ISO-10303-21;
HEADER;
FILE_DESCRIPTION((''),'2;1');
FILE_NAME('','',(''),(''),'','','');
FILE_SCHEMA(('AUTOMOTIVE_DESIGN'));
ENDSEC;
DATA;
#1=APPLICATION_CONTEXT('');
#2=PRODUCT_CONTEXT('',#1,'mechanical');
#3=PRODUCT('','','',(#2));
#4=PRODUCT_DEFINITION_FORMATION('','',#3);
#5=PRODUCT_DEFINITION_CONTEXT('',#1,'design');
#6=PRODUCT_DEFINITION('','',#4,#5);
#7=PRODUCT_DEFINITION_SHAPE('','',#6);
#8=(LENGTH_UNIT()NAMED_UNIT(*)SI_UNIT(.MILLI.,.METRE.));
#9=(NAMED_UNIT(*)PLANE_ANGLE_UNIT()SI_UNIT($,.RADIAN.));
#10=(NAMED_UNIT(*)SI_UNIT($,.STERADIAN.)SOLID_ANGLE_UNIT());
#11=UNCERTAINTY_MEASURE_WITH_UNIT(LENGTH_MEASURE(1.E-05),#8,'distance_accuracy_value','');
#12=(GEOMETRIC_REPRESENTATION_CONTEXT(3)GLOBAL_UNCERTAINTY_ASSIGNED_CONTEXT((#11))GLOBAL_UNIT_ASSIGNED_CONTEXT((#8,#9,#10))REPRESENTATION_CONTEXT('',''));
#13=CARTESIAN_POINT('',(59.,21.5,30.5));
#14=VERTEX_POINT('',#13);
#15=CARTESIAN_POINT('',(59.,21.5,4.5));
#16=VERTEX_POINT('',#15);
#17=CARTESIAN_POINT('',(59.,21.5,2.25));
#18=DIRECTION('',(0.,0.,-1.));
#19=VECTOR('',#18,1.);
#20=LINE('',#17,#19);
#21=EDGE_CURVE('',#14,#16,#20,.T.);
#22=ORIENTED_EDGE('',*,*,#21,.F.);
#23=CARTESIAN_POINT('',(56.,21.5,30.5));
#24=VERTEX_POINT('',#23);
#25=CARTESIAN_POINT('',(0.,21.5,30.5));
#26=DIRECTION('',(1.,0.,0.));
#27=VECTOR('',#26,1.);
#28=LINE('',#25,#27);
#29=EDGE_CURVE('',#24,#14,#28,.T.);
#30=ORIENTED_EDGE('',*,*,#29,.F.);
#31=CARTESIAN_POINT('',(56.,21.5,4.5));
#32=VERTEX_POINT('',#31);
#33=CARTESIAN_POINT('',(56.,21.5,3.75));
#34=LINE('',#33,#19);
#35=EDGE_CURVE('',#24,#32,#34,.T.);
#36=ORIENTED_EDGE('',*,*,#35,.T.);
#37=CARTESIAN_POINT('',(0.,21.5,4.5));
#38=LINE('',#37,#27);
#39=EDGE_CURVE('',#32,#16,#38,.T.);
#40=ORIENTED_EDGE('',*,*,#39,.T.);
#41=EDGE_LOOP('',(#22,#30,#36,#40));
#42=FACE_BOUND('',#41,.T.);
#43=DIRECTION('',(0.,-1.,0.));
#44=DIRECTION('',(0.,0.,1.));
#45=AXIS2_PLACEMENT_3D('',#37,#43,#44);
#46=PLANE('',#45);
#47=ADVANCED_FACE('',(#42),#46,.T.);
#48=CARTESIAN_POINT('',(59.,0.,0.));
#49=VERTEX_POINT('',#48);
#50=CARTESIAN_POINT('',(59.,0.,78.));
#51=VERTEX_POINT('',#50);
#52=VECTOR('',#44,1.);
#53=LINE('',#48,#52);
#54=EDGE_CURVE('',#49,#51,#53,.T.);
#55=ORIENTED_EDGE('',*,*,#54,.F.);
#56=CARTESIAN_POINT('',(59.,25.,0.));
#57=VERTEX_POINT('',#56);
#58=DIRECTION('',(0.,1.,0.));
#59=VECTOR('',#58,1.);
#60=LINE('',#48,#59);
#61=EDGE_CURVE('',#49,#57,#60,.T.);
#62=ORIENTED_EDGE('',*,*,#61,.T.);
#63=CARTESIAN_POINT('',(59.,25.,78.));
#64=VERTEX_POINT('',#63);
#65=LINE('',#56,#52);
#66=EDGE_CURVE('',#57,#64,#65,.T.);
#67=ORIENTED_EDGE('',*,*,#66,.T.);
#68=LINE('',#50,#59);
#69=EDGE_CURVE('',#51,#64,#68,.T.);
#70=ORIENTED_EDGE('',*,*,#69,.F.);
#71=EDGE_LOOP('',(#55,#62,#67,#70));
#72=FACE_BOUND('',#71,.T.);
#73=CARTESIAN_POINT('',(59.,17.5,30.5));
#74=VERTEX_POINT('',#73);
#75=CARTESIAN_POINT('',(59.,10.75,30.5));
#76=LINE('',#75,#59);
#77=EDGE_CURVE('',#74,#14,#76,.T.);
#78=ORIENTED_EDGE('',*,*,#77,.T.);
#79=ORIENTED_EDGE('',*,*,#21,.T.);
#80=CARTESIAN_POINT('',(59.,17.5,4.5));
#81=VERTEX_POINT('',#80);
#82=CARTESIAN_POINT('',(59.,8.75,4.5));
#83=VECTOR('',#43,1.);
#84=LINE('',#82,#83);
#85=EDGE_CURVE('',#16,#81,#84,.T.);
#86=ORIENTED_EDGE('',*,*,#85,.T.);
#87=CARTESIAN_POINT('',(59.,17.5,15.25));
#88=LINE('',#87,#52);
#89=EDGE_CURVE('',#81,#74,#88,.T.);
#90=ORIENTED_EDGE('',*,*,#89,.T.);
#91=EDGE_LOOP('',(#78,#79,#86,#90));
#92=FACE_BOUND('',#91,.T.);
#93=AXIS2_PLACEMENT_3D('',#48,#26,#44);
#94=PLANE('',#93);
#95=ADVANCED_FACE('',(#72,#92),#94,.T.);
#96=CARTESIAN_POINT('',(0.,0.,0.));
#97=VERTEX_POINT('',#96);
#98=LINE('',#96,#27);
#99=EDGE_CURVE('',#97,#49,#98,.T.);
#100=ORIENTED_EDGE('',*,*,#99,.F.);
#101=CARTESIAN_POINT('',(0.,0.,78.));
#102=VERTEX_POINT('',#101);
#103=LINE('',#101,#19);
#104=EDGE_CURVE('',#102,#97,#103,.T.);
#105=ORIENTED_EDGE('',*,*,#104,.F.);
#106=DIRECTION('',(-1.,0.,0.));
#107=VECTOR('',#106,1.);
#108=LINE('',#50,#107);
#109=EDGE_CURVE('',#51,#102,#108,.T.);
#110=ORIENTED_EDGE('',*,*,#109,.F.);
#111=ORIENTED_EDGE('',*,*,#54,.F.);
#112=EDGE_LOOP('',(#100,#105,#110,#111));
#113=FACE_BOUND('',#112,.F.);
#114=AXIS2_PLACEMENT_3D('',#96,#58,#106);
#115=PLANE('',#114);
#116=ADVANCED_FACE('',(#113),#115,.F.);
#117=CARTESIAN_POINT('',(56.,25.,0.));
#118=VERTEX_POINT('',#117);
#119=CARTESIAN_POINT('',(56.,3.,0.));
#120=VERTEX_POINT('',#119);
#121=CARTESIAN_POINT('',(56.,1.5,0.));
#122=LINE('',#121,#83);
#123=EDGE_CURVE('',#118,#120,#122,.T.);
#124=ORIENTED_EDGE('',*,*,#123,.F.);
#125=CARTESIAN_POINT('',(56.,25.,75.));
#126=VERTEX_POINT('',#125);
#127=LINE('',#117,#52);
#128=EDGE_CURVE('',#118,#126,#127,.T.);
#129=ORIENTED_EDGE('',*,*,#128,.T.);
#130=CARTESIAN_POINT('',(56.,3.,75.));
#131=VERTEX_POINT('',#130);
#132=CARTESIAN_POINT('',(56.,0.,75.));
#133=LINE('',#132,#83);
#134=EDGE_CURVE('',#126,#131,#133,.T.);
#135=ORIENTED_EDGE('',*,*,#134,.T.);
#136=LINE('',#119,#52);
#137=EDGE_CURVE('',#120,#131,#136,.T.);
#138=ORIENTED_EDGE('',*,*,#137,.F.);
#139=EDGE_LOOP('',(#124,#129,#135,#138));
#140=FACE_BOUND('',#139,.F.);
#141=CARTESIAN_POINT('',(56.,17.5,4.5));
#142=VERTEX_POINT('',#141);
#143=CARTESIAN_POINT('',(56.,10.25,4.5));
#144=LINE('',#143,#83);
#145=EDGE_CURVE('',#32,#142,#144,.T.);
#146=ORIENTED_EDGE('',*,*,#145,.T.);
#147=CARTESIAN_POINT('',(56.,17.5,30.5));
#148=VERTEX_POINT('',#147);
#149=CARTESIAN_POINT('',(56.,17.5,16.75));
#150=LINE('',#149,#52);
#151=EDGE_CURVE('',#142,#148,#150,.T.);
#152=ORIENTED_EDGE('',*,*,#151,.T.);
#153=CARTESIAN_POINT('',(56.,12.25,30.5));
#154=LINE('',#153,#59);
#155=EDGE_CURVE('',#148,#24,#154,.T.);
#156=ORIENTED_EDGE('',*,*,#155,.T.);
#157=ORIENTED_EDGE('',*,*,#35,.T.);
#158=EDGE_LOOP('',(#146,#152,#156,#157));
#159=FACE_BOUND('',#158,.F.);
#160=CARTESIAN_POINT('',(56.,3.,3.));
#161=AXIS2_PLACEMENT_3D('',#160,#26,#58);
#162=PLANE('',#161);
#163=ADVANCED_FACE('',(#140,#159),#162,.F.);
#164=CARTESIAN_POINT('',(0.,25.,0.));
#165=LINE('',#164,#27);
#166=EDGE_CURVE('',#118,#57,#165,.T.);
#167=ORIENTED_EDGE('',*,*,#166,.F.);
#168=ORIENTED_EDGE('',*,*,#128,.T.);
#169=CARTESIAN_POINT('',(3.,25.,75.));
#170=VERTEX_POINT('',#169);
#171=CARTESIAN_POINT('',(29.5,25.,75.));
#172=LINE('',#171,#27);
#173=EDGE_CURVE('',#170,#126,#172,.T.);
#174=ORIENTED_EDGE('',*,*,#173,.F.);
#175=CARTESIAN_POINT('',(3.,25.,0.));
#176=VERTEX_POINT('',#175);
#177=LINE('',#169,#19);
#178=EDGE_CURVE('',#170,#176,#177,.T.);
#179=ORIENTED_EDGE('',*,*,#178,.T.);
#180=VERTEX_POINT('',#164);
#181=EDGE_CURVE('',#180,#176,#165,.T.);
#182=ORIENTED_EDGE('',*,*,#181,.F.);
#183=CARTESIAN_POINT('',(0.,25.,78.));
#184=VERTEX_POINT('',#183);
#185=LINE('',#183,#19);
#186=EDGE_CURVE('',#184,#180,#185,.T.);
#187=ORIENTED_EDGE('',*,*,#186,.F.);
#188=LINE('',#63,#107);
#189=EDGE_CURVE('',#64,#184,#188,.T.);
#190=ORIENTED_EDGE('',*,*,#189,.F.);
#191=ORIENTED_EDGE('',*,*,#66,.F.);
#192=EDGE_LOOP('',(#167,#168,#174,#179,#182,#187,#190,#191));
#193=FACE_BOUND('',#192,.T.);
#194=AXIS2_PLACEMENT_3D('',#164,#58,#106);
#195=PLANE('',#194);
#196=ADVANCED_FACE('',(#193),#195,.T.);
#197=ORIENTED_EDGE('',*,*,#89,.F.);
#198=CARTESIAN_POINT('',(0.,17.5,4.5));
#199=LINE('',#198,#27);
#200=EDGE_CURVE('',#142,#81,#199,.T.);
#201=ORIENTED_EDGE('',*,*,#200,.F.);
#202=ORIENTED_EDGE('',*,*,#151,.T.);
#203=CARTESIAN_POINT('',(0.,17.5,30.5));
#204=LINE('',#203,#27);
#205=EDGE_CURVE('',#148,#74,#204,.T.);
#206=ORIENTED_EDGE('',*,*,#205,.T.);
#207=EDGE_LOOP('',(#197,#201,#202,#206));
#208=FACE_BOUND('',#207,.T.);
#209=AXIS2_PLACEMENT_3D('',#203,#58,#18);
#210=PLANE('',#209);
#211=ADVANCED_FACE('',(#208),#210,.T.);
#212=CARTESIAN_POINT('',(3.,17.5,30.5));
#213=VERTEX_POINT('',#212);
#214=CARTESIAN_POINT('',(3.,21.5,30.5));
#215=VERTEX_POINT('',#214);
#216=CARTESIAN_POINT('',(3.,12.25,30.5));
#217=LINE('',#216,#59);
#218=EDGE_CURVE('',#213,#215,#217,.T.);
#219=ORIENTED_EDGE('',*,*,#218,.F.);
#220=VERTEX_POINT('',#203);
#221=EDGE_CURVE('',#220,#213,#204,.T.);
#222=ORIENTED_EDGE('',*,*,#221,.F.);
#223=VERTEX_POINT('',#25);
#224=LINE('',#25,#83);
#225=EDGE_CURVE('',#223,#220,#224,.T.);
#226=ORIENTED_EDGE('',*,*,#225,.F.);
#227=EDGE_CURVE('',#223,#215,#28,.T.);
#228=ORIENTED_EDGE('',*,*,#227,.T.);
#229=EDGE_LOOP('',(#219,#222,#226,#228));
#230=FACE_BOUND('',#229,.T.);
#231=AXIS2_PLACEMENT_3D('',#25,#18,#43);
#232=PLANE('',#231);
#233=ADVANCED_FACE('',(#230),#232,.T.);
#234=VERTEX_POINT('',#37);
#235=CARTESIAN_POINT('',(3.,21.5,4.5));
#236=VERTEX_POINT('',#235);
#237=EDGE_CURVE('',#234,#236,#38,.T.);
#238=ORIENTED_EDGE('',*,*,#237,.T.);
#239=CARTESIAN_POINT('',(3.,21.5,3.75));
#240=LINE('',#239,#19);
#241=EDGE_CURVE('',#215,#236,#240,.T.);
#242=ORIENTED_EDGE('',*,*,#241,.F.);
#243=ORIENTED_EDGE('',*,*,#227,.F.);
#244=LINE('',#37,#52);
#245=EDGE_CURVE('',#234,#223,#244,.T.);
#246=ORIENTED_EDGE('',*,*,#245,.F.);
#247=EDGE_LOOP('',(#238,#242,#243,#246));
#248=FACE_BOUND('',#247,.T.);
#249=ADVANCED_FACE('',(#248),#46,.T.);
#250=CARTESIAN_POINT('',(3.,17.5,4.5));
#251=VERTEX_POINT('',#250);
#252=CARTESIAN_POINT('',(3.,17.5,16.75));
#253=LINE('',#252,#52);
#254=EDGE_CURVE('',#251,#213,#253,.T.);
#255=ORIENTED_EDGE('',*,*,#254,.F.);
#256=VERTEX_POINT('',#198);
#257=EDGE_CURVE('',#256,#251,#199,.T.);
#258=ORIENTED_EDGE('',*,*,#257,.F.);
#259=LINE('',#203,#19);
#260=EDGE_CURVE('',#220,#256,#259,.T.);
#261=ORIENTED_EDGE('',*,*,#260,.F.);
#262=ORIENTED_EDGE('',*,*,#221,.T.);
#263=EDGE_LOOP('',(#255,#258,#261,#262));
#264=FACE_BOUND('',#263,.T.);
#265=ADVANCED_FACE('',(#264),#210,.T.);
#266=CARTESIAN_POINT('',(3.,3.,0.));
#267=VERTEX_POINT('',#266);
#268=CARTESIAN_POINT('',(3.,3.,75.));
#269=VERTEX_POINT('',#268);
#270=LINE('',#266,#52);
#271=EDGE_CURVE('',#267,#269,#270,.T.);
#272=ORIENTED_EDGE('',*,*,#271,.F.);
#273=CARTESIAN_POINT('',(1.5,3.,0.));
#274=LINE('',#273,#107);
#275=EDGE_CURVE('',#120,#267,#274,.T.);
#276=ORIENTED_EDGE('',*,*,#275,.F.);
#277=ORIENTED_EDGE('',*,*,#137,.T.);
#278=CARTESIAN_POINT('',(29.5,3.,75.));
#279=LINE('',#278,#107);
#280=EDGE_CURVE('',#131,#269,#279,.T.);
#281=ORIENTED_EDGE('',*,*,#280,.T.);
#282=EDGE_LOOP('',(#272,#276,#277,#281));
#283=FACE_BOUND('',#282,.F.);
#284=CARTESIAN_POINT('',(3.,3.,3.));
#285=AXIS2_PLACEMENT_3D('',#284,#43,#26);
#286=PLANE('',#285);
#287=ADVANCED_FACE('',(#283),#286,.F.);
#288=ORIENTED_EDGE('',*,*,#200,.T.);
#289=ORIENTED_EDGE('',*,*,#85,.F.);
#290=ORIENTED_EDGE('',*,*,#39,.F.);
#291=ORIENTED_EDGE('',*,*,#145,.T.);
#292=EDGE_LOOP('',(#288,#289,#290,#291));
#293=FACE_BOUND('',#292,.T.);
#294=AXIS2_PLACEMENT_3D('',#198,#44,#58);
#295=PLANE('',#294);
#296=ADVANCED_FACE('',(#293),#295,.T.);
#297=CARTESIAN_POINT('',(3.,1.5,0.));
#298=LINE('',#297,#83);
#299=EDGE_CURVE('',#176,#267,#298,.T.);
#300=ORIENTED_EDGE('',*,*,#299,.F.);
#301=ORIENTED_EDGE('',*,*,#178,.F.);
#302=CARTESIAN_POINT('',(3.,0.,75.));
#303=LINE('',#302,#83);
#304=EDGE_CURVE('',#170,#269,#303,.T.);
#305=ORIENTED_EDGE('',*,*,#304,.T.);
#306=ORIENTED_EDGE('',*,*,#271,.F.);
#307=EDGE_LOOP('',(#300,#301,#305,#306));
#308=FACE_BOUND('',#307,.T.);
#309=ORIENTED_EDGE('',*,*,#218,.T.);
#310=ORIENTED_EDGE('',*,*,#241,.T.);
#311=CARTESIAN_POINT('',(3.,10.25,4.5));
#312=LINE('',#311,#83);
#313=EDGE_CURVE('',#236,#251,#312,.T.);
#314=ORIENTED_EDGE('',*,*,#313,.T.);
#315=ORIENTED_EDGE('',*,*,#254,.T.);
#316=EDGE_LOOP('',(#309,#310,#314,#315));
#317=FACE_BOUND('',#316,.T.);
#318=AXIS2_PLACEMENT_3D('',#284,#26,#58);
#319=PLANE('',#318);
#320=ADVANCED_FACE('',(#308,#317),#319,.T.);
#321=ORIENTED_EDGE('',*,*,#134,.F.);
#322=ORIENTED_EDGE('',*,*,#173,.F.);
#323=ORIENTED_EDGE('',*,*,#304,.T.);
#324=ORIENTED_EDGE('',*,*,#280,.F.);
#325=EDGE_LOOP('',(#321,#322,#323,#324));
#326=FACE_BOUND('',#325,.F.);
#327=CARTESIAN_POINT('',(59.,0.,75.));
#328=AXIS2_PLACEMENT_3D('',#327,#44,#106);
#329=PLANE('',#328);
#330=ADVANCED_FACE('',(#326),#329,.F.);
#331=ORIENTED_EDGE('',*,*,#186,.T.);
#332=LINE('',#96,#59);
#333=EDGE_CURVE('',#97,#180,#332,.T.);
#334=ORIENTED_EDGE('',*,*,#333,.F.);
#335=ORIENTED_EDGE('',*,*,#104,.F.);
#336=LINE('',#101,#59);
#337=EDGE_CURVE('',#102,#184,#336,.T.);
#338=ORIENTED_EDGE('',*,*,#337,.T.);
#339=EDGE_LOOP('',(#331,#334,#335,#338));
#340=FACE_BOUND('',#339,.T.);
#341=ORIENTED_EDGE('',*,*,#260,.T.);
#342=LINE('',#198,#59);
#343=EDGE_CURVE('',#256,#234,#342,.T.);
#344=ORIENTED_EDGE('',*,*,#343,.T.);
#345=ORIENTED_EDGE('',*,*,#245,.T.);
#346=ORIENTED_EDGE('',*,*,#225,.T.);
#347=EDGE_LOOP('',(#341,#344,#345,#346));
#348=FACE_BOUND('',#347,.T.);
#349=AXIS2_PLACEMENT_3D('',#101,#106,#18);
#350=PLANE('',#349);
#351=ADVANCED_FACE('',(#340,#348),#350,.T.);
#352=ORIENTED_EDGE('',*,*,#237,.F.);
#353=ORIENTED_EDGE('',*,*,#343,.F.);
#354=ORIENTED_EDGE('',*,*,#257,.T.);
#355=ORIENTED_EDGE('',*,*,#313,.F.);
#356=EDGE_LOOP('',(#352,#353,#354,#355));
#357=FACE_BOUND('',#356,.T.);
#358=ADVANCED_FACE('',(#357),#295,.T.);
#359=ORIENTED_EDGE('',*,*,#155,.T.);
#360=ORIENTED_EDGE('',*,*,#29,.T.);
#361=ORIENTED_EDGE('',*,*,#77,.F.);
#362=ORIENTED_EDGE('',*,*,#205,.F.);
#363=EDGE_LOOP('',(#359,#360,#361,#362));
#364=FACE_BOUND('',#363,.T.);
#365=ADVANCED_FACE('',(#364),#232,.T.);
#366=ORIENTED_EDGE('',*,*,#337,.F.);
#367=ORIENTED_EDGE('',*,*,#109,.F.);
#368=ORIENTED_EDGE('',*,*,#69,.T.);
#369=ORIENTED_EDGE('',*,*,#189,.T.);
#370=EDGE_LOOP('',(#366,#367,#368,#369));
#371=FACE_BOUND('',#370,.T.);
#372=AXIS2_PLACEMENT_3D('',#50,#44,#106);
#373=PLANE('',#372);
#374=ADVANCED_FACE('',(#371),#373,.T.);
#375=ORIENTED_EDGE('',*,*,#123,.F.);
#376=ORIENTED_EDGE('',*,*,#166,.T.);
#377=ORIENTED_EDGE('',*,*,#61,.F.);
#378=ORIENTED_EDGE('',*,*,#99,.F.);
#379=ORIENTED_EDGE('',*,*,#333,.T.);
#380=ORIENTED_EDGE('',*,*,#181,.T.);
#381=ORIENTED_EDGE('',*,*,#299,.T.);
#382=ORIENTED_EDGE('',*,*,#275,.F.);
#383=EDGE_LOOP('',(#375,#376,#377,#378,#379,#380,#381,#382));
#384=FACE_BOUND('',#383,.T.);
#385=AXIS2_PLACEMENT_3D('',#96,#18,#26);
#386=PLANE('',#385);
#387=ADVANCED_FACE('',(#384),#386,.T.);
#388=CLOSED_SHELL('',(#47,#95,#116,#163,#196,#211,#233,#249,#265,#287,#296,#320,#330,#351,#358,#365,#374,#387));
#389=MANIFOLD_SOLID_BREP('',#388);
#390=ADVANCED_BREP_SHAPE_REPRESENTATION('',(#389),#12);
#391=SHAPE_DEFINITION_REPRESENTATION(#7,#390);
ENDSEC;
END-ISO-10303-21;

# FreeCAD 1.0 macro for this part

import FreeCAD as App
import Part
import Sketcher

V = App.Vector
Q = App.Units.Quantity


def faces_at(feature, points):
    """Names of the faces that lie closest to the given points."""
    faces = feature.Shape.Faces
    near = lambda p: min(range(len(faces)), key=lambda i: faces[i].distToShape(Part.Vertex(*p))[0])
    return sorted({f"Face{near(p) + 1}" for p in points})


def add_polygon(sketch, points):
    """Adds a closed chain of lines whose ends are joined by coincident constraints."""
    first, n = sketch.GeometryCount, len(points)
    for a, b in zip(points, points[1:] + points[:1]):
        sketch.addGeometry(Part.LineSegment(App.Vector(*a, 0), App.Vector(*b, 0)), False)
    for i in range(n):
        sketch.addConstraint(Sketcher.Constraint("Coincident", first + i, 2, first + (i + 1) % n, 1))

doc = App.newDocument("Part")
body = doc.addObject("PartDesign::Body", "Body")

# Sketch on XZ plane
sketch1 = body.newObject("Sketcher::SketchObject", "Sketch")
sketch1.AttachmentSupport = (doc.getObject("XZ_Plane"), [""])
sketch1.MapMode = "FlatFace"
add_polygon(sketch1, [(59, 0), (0, 0), (0, 78), (59, 78)])  # lines 0-3
sketch1.addConstraint(Sketcher.Constraint("Horizontal", 0))
sketch1.addConstraint(Sketcher.Constraint("Vertical", 1))
sketch1.addConstraint(Sketcher.Constraint("Horizontal", 2))
sketch1.addConstraint(Sketcher.Constraint("Vertical", 3))
sketch1.addConstraint(Sketcher.Constraint("Coincident", 0, 2, -1, 1))
sketch1.addConstraint(Sketcher.Constraint("DistanceX", 0, 2, 0, 1, Q("59 mm")))
sketch1.addConstraint(Sketcher.Constraint("DistanceY", 1, 1, 1, 2, Q("78 mm")))
pad1 = body.newObject("PartDesign::Pad", "Pad")
pad1.Profile = sketch1
pad1.Length = 25
pad1.Reversed = True
doc.recompute()

thickness = body.newObject("PartDesign::Thickness", "Thickness")
thickness.Base = (pad1, faces_at(pad1, [(39.333, 25, 52)]))
thickness.Value = 3
thickness.Reversed = True
thickness.Join = "Intersection"

# Sketch on XY plane
sketch2 = body.newObject("Sketcher::SketchObject", "Sketch001")
sketch2.AttachmentSupport = (doc.getObject("XY_Plane"), [""])
sketch2.MapMode = "FlatFace"
sketch2.AttachmentOffset = App.Placement(V(0, 0, 3), App.Rotation())
add_polygon(sketch2, [(3, 25), (3, 3), (56, 3), (56, 25)])  # lines 0-3
sketch2.addConstraint(Sketcher.Constraint("Vertical", 0))
sketch2.addConstraint(Sketcher.Constraint("Horizontal", 1))
sketch2.addConstraint(Sketcher.Constraint("Vertical", 2))
sketch2.addConstraint(Sketcher.Constraint("Horizontal", 3))
sketch2.addConstraint(Sketcher.Constraint("DistanceX", 1, 1, 1, 2, Q("53 mm")))
sketch2.addConstraint(Sketcher.Constraint("DistanceY", 0, 2, 0, 1, Q("22 mm")))
sketch2.addConstraint(Sketcher.Constraint("DistanceX", -1, 1, 0, 2, Q("3 mm")))
sketch2.addConstraint(Sketcher.Constraint("DistanceY", -1, 1, 0, 2, Q("3 mm")))
pocket1 = body.newObject("PartDesign::Pocket", "Pocket")
pocket1.Profile = sketch2
pocket1.Length = 10

# Sketch on YZ plane
sketch3 = body.newObject("Sketcher::SketchObject", "Sketch002")
sketch3.AttachmentSupport = (doc.getObject("YZ_Plane"), [""])
sketch3.MapMode = "FlatFace"
add_polygon(sketch3, [(21.5, 30.5), (21.5, 4.5), (17.5, 4.5), (17.5, 30.5)])  # lines 0-3
sketch3.addConstraint(Sketcher.Constraint("Vertical", 0))
sketch3.addConstraint(Sketcher.Constraint("Horizontal", 1))
sketch3.addConstraint(Sketcher.Constraint("Vertical", 2))
sketch3.addConstraint(Sketcher.Constraint("Horizontal", 3))
sketch3.addConstraint(Sketcher.Constraint("DistanceX", 1, 2, 1, 1, Q("4 mm")))
sketch3.addConstraint(Sketcher.Constraint("DistanceY", 0, 2, 0, 1, Q("26 mm")))
sketch3.addConstraint(Sketcher.Constraint("DistanceY", -1, 1, 0, 2, Q("4.5 mm")))
sketch3.addConstraint(Sketcher.Constraint("DistanceX", -1, 1, 1, 2, Q("17.5 mm")))
pocket2 = body.newObject("PartDesign::Pocket", "Pocket001")
pocket2.Profile = sketch3
pocket2.Type = "ThroughAll"
pocket2.Reversed = True

doc.recompute()
